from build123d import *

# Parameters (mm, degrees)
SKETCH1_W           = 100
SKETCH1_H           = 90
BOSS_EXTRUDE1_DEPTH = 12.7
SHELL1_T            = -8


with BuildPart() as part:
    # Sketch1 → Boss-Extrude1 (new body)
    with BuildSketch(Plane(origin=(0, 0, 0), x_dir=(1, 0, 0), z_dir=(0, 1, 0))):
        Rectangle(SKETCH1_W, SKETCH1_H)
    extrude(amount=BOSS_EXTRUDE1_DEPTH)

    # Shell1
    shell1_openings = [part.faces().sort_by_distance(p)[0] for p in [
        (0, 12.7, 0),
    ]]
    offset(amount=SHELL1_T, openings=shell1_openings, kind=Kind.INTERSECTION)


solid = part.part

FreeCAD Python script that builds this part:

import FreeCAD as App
import Part
import Sketcher


def faces_at(feature, points):
    """Names of the faces that lie closest to the given points."""
    faces = feature.Shape.Faces
    near = lambda p: min(range(len(faces)), key=lambda i: faces[i].distToShape(Part.Vertex(*p))[0])
    return sorted({f"Face{near(p) + 1}" for p in points})


def add_polygon(sketch, points):
    """Adds a closed chain of lines whose ends are joined by coincident constraints."""
    first, n = sketch.GeometryCount, len(points)
    for a, b in zip(points, points[1:] + points[:1]):
        sketch.addGeometry(Part.LineSegment(App.Vector(*a, 0), App.Vector(*b, 0)), False)
    for i in range(n):
        sketch.addConstraint(Sketcher.Constraint("Coincident", first + i, 2, first + (i + 1) % n, 1))

doc = App.newDocument("Part")
params = doc.addObject("Spreadsheet::Sheet", "Params")
for row, (alias, value) in enumerate([
    ("sketch1_width", "100 mm"),
    ("sketch1_height", "90 mm"),
    ("pad1_length", "12.7 mm"),
    ("thickness_wall", "8 mm"),
], start=1):
    params.set(f"A{row}", alias)
    params.set(f"B{row}", "=" + value)
    params.setAlias(f"B{row}", alias)

body = doc.addObject("PartDesign::Body", "Body")

sketch1 = doc.addObject("Sketcher::SketchObject", "Sketch")
body.addObject(sketch1)
sketch1.AttachmentSupport = (doc.XZ_Plane, [""])
sketch1.MapMode = "FlatFace"
add_polygon(sketch1, [(-50, -45), (-50, 45), (50, 45), (50, -45)])
sketch1.addConstraint([
    Sketcher.Constraint("Vertical", 0),
    Sketcher.Constraint("Horizontal", 1),
    Sketcher.Constraint("Vertical", 2),
    Sketcher.Constraint("Horizontal", 3),
    Sketcher.Constraint("Symmetric", 0, 2, 2, 2, -1, 1),
    Sketcher.Constraint("DistanceX", 1, 1, 1, 2, 100.0),
    Sketcher.Constraint("DistanceY", 0, 1, 0, 2, 90.0),
])
sketch1.setExpression("Constraints[9]", "Params.sketch1_width")
sketch1.setExpression("Constraints[10]", "Params.sketch1_height")
pad1 = doc.addObject("PartDesign::Pad", "Pad")
body.addObject(pad1)
pad1.Profile = sketch1
pad1.setExpression("Length", "Params.pad1_length")
pad1.Reversed = True
doc.recompute()

thickness = doc.addObject("PartDesign::Thickness", "Thickness")
body.addObject(thickness)
thickness.Base = (pad1, faces_at(pad1, [(0, 12.7, 0)]))
thickness.setExpression("Value", "Params.thickness_wall")
thickness.Reversed = True
thickness.Join = "Intersection"

doc.recompute()
